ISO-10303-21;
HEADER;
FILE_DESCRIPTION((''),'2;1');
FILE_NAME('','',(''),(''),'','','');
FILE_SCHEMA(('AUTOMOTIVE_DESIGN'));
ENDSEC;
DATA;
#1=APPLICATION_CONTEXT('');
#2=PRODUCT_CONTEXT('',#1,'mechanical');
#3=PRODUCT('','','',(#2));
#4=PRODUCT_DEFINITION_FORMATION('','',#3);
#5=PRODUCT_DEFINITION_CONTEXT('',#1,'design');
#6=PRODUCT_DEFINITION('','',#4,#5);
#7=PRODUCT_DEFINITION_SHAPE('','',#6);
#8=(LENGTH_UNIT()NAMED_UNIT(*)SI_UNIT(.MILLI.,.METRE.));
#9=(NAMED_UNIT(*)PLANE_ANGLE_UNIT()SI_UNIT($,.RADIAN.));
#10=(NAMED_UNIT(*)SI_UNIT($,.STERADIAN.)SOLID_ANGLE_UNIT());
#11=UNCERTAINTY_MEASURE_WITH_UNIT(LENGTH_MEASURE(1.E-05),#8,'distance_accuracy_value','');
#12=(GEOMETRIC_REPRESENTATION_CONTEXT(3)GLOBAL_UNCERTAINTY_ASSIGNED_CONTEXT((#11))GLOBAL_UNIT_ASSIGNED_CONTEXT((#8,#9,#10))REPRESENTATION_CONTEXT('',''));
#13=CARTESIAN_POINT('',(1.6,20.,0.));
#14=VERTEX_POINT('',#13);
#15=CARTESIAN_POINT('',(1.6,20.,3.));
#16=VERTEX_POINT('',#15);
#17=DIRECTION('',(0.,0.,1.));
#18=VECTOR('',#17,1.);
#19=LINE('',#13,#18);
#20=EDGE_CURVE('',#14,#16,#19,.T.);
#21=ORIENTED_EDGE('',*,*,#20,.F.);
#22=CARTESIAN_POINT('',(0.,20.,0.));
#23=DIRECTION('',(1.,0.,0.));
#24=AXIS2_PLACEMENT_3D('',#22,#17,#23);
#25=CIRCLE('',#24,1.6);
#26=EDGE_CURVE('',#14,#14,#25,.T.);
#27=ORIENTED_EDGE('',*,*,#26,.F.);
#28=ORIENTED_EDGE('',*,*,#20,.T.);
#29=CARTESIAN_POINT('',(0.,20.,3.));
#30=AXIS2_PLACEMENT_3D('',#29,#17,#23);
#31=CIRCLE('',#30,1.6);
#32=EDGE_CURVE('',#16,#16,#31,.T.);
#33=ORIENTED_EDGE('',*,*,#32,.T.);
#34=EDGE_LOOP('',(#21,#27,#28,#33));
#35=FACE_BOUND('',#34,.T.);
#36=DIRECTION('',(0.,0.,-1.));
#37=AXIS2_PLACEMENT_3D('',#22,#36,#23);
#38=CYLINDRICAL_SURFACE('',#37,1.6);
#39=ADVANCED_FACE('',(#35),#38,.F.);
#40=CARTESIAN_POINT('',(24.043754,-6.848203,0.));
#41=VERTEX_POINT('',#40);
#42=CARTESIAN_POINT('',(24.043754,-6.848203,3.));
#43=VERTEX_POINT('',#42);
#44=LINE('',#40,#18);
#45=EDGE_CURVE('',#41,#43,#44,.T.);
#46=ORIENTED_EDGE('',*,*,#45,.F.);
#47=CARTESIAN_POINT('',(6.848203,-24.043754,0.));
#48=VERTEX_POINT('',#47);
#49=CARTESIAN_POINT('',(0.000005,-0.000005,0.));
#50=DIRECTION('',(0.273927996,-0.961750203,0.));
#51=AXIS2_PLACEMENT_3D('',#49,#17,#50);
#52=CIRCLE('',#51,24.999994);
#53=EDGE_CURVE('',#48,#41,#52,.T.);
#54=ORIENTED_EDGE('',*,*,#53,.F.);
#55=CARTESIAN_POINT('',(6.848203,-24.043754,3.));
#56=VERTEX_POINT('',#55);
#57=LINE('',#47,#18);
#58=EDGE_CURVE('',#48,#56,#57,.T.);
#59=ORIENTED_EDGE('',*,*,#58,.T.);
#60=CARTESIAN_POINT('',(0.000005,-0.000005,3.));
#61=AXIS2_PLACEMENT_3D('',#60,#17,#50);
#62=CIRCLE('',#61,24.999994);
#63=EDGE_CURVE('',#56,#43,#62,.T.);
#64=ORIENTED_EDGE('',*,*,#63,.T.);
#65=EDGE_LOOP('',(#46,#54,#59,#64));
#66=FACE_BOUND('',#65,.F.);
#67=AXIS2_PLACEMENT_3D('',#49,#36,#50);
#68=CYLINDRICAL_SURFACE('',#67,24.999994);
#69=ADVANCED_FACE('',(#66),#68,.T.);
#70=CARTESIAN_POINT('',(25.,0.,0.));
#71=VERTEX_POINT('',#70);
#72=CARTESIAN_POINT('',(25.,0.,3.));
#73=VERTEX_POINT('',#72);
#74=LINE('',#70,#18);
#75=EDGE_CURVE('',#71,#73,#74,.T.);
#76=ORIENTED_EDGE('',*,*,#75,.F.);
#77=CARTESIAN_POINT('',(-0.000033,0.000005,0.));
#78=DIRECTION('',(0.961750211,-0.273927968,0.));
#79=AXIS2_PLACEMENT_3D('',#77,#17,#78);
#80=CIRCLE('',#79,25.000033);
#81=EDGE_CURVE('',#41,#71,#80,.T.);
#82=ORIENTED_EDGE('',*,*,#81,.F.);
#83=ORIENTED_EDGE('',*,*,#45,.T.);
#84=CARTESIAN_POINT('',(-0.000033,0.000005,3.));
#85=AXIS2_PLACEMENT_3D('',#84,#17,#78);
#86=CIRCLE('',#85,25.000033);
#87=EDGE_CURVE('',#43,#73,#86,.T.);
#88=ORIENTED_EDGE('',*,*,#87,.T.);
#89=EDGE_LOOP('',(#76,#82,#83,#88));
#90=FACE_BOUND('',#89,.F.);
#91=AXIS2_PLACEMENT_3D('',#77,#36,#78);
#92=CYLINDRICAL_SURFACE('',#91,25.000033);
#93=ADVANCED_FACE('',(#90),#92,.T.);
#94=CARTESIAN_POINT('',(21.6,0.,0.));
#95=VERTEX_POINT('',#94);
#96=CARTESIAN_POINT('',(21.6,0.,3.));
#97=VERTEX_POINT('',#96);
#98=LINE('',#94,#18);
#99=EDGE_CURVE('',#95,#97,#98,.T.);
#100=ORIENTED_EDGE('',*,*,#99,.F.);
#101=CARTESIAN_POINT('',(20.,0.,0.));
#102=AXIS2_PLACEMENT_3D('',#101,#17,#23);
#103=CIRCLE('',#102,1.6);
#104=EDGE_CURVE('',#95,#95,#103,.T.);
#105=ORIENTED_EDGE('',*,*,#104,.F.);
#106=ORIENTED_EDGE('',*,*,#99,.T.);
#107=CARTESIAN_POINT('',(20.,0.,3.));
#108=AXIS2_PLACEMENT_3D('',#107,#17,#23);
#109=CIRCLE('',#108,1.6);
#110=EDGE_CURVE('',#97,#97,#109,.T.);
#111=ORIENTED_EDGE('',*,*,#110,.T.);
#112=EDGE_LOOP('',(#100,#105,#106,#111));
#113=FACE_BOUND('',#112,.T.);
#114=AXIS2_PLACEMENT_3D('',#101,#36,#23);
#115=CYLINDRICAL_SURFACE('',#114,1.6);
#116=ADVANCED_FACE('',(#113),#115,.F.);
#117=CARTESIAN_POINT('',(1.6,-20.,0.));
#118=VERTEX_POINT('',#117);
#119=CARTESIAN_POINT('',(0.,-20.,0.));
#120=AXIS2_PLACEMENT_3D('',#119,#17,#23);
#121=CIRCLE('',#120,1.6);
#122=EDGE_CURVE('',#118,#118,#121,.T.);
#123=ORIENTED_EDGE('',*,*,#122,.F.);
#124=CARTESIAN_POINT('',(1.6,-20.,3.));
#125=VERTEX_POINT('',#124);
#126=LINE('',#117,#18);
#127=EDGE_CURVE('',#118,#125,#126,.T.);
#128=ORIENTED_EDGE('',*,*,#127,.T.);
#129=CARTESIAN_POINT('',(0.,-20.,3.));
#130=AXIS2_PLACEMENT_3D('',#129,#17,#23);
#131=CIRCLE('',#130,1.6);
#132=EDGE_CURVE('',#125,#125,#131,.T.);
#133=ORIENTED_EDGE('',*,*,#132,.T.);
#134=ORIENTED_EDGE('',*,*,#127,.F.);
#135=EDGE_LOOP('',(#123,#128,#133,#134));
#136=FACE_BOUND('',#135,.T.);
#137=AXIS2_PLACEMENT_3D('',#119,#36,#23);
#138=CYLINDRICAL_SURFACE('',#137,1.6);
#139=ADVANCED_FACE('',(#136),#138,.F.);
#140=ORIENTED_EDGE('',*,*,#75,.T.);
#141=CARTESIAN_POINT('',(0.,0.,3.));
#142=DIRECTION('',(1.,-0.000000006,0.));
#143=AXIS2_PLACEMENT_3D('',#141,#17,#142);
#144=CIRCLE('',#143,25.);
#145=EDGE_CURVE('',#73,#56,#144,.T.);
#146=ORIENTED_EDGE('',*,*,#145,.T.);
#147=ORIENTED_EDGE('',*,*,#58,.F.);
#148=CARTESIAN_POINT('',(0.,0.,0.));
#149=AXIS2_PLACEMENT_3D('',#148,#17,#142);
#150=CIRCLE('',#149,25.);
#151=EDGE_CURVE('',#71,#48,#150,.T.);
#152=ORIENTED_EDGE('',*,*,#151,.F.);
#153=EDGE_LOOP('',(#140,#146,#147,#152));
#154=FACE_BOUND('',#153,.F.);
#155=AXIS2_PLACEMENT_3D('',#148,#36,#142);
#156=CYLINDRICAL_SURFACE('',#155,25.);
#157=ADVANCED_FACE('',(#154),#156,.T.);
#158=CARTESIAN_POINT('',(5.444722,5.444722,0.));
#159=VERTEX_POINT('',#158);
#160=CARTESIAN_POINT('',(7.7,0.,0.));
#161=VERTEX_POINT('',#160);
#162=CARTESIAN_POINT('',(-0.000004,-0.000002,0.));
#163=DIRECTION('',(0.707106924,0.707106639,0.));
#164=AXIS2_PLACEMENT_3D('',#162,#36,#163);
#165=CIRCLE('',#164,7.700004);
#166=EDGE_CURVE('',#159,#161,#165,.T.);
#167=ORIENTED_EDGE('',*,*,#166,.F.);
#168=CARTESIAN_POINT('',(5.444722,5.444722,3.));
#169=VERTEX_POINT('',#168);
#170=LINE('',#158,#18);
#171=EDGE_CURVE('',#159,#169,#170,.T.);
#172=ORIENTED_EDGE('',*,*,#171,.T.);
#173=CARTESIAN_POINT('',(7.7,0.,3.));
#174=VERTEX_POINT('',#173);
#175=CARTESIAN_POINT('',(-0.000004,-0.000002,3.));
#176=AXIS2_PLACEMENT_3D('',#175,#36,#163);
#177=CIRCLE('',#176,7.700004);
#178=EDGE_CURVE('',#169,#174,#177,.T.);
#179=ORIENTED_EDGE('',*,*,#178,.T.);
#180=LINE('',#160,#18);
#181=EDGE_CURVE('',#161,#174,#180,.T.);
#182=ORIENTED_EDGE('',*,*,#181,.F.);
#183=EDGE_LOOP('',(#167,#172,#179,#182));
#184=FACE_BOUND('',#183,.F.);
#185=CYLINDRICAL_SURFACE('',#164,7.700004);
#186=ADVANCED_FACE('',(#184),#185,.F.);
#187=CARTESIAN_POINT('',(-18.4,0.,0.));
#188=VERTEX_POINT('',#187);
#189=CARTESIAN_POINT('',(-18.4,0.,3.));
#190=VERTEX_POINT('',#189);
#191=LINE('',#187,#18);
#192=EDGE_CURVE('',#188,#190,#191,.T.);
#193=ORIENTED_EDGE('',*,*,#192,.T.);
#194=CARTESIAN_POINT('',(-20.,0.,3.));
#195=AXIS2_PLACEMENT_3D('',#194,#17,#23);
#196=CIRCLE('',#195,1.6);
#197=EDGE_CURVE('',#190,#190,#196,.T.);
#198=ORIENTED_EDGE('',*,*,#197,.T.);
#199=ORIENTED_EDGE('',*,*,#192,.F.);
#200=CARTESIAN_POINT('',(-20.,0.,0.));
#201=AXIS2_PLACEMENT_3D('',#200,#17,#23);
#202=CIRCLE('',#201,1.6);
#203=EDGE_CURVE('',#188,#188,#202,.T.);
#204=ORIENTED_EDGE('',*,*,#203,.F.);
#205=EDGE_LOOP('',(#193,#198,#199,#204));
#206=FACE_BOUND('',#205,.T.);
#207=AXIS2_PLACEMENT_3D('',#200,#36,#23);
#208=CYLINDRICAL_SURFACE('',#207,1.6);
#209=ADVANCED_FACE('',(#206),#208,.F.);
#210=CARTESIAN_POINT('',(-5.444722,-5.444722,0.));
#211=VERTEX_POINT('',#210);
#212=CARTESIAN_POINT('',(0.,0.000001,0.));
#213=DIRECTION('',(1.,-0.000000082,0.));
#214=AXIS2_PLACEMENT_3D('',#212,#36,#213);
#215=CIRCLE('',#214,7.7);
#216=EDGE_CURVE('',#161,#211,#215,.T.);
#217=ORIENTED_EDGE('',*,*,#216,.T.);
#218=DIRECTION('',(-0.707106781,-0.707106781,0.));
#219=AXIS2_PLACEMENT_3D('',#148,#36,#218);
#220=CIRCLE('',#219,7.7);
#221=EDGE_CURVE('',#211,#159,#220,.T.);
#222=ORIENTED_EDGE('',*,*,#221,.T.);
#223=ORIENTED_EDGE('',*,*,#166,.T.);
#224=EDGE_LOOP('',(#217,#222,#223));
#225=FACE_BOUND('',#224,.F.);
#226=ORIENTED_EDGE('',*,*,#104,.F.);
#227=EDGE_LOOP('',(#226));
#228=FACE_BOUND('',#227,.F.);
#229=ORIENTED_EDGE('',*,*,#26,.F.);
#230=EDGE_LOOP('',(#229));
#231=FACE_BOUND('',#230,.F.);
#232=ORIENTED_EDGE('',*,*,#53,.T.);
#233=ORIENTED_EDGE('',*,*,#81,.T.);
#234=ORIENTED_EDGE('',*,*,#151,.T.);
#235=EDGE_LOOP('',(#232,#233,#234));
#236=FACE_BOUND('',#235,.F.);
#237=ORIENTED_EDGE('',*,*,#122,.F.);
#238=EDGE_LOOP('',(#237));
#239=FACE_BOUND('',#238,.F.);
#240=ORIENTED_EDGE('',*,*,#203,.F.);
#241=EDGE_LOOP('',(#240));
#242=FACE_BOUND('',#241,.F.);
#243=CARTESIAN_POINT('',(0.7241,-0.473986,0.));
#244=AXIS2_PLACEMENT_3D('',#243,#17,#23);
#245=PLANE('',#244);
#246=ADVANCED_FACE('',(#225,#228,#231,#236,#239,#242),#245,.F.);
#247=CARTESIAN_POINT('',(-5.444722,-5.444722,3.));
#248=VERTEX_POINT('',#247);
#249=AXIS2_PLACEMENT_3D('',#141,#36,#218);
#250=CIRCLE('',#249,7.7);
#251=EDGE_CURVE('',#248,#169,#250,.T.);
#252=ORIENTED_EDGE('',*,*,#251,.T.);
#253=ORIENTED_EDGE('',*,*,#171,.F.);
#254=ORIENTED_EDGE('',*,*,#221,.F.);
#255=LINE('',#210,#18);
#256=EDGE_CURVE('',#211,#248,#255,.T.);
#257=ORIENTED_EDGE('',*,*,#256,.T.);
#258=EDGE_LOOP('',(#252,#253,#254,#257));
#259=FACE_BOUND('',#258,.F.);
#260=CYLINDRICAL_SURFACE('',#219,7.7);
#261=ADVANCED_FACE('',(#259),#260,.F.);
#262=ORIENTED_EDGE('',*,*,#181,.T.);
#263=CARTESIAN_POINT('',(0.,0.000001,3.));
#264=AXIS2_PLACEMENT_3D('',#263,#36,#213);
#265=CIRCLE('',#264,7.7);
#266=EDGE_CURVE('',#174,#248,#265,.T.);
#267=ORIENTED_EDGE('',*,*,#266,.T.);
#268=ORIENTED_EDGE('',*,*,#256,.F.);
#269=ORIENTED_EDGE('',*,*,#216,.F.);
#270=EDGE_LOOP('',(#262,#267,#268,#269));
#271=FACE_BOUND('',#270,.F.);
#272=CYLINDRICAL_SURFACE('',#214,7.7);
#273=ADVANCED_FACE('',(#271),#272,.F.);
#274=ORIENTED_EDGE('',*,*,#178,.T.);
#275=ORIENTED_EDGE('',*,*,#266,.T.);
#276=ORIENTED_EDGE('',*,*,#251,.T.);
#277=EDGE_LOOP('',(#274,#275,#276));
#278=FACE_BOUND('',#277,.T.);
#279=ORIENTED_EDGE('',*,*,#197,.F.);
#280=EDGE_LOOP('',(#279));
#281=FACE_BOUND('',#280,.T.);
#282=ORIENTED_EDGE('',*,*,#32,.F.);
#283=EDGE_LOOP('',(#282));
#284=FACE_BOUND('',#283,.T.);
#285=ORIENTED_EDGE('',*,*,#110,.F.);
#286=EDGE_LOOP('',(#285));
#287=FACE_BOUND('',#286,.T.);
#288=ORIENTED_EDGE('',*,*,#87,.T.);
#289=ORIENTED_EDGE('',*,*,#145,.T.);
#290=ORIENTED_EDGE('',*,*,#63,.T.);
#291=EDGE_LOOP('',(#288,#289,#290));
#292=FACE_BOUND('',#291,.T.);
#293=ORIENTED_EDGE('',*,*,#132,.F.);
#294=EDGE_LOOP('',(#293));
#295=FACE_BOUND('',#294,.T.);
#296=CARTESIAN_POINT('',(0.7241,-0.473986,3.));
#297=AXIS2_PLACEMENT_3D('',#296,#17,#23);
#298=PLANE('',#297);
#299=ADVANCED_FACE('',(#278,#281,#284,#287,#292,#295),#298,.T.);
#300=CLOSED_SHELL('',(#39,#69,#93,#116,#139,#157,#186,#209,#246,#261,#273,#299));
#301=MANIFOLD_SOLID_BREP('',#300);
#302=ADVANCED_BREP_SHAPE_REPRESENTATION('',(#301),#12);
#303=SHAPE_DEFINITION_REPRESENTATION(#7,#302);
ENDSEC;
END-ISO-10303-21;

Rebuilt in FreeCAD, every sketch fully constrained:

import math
import FreeCAD as App
import Part
import Sketcher
Q = App.Units.Quantity

doc = App.newDocument("Part")
body = doc.addObject("PartDesign::Body", "Body")

# Sketch on XY plane
sketch1 = body.newObject("Sketcher::SketchObject", "Sketch")
sketch1.AttachmentSupport = (doc.getObject("XY_Plane"), [""])
sketch1.MapMode = "FlatFace"
sketch1.addGeometry([
    Part.ArcOfCircle(Part.Circle(App.Vector(-0.000033, 0.000005, 0), App.Vector(0, 0, 1), 25.000033), math.radians(-15.898138), math.radians(-0.000012)),  # 0
    Part.ArcOfCircle(Part.Circle(App.Vector(0, 0, 0), App.Vector(0, 0, 1), 25), math.radians(0), math.radians(285.898147)),  # 1
    Part.ArcOfCircle(Part.Circle(App.Vector(0.000005, -0.000005, 0), App.Vector(0, 0, 1), 24.999994), math.radians(-74.10186), math.radians(-15.89814)),  # 2
    Part.ArcOfCircle(Part.Circle(App.Vector(0, 0, 0), App.Vector(0, 0, 1), 7.7), math.radians(45), math.radians(225)),  # 3
    Part.ArcOfCircle(Part.Circle(App.Vector(-0.000004, -0.000002, 0), App.Vector(0, 0, 1), 7.700004), math.radians(0.000017), math.radians(44.999988)),  # 4
    Part.ArcOfCircle(Part.Circle(App.Vector(0, 0.000001, 0), App.Vector(0, 0, 1), 7.7), math.radians(-134.999996), math.radians(-0.000005)),  # 5
    Part.Circle(App.Vector(0, -20, 0), App.Vector(0, 0, 1), 1.6),  # 6
    Part.Circle(App.Vector(-20, 0, 0), App.Vector(0, 0, 1), 1.6),  # 7
    Part.Circle(App.Vector(20, 0, 0), App.Vector(0, 0, 1), 1.6),  # 8
    Part.Circle(App.Vector(0, 20, 0), App.Vector(0, 0, 1), 1.6),  # 9
], False)
sketch1.addConstraint([
    Sketcher.Constraint("Coincident", 0, 2, 1, 1),
    Sketcher.Constraint("Coincident", 1, 2, 2, 1),
    Sketcher.Constraint("Coincident", 2, 2, 0, 1),
    Sketcher.Constraint("Coincident", 3, 1, 4, 2),
    Sketcher.Constraint("Coincident", 4, 1, 5, 2),
    Sketcher.Constraint("Coincident", 5, 1, 3, 2),
    Sketcher.Constraint("Coincident", 1, 3, -1, 1),
    Sketcher.Constraint("Coincident", 2, 3, -1, 1),
    Sketcher.Constraint("Coincident", 3, 3, -1, 1),
    Sketcher.Constraint("Coincident", 4, 3, -1, 1),
    Sketcher.Constraint("PointOnObject", 6, 3, -2),
    Sketcher.Constraint("PointOnObject", 7, 3, -1),
    Sketcher.Constraint("PointOnObject", 8, 3, -1),
    Sketcher.Constraint("PointOnObject", 9, 3, -2),
    Sketcher.Constraint("PointOnObject", 0, 2, -1),
    Sketcher.Constraint("PointOnObject", 4, 1, -1),
    Sketcher.Constraint("Radius", 1, Q("25 mm")),
    Sketcher.Constraint("Diameter", 6, Q("3.2 mm")),
    Sketcher.Constraint("Diameter", 7, Q("3.2 mm")),
    Sketcher.Constraint("Diameter", 8, Q("3.2 mm")),
    Sketcher.Constraint("Diameter", 9, Q("3.2 mm")),
    Sketcher.Constraint("Radius", 3, Q("7.7 mm")),
    Sketcher.Constraint("Radius", 5, Q("7.7 mm")),
    Sketcher.Constraint("DistanceY", 6, 3, -1, 1, Q("20 mm")),
    Sketcher.Constraint("DistanceX", 7, 3, -1, 1, Q("20 mm")),
    Sketcher.Constraint("DistanceX", -1, 1, 8, 3, Q("20 mm")),
    Sketcher.Constraint("DistanceY", -1, 1, 9, 3, Q("20 mm")),
    Sketcher.Constraint("Radius", 0, Q("25.000033 mm")),
    Sketcher.Constraint("DistanceX", 2, 3, 1, 2, Q("6.848198 mm")),
    Sketcher.Constraint("DistanceY", 2, 2, 2, 3, Q("6.848198 mm")),
    Sketcher.Constraint("DistanceY", 5, 3, 3, 1, Q("5.444721 mm")),
    Sketcher.Constraint("DistanceX", 5, 1, 0, 3, Q("5.444689 mm")),
])
pad1 = body.newObject("PartDesign::Pad", "Pad")
pad1.Profile = sketch1
pad1.Length = 3

doc.recompute()
